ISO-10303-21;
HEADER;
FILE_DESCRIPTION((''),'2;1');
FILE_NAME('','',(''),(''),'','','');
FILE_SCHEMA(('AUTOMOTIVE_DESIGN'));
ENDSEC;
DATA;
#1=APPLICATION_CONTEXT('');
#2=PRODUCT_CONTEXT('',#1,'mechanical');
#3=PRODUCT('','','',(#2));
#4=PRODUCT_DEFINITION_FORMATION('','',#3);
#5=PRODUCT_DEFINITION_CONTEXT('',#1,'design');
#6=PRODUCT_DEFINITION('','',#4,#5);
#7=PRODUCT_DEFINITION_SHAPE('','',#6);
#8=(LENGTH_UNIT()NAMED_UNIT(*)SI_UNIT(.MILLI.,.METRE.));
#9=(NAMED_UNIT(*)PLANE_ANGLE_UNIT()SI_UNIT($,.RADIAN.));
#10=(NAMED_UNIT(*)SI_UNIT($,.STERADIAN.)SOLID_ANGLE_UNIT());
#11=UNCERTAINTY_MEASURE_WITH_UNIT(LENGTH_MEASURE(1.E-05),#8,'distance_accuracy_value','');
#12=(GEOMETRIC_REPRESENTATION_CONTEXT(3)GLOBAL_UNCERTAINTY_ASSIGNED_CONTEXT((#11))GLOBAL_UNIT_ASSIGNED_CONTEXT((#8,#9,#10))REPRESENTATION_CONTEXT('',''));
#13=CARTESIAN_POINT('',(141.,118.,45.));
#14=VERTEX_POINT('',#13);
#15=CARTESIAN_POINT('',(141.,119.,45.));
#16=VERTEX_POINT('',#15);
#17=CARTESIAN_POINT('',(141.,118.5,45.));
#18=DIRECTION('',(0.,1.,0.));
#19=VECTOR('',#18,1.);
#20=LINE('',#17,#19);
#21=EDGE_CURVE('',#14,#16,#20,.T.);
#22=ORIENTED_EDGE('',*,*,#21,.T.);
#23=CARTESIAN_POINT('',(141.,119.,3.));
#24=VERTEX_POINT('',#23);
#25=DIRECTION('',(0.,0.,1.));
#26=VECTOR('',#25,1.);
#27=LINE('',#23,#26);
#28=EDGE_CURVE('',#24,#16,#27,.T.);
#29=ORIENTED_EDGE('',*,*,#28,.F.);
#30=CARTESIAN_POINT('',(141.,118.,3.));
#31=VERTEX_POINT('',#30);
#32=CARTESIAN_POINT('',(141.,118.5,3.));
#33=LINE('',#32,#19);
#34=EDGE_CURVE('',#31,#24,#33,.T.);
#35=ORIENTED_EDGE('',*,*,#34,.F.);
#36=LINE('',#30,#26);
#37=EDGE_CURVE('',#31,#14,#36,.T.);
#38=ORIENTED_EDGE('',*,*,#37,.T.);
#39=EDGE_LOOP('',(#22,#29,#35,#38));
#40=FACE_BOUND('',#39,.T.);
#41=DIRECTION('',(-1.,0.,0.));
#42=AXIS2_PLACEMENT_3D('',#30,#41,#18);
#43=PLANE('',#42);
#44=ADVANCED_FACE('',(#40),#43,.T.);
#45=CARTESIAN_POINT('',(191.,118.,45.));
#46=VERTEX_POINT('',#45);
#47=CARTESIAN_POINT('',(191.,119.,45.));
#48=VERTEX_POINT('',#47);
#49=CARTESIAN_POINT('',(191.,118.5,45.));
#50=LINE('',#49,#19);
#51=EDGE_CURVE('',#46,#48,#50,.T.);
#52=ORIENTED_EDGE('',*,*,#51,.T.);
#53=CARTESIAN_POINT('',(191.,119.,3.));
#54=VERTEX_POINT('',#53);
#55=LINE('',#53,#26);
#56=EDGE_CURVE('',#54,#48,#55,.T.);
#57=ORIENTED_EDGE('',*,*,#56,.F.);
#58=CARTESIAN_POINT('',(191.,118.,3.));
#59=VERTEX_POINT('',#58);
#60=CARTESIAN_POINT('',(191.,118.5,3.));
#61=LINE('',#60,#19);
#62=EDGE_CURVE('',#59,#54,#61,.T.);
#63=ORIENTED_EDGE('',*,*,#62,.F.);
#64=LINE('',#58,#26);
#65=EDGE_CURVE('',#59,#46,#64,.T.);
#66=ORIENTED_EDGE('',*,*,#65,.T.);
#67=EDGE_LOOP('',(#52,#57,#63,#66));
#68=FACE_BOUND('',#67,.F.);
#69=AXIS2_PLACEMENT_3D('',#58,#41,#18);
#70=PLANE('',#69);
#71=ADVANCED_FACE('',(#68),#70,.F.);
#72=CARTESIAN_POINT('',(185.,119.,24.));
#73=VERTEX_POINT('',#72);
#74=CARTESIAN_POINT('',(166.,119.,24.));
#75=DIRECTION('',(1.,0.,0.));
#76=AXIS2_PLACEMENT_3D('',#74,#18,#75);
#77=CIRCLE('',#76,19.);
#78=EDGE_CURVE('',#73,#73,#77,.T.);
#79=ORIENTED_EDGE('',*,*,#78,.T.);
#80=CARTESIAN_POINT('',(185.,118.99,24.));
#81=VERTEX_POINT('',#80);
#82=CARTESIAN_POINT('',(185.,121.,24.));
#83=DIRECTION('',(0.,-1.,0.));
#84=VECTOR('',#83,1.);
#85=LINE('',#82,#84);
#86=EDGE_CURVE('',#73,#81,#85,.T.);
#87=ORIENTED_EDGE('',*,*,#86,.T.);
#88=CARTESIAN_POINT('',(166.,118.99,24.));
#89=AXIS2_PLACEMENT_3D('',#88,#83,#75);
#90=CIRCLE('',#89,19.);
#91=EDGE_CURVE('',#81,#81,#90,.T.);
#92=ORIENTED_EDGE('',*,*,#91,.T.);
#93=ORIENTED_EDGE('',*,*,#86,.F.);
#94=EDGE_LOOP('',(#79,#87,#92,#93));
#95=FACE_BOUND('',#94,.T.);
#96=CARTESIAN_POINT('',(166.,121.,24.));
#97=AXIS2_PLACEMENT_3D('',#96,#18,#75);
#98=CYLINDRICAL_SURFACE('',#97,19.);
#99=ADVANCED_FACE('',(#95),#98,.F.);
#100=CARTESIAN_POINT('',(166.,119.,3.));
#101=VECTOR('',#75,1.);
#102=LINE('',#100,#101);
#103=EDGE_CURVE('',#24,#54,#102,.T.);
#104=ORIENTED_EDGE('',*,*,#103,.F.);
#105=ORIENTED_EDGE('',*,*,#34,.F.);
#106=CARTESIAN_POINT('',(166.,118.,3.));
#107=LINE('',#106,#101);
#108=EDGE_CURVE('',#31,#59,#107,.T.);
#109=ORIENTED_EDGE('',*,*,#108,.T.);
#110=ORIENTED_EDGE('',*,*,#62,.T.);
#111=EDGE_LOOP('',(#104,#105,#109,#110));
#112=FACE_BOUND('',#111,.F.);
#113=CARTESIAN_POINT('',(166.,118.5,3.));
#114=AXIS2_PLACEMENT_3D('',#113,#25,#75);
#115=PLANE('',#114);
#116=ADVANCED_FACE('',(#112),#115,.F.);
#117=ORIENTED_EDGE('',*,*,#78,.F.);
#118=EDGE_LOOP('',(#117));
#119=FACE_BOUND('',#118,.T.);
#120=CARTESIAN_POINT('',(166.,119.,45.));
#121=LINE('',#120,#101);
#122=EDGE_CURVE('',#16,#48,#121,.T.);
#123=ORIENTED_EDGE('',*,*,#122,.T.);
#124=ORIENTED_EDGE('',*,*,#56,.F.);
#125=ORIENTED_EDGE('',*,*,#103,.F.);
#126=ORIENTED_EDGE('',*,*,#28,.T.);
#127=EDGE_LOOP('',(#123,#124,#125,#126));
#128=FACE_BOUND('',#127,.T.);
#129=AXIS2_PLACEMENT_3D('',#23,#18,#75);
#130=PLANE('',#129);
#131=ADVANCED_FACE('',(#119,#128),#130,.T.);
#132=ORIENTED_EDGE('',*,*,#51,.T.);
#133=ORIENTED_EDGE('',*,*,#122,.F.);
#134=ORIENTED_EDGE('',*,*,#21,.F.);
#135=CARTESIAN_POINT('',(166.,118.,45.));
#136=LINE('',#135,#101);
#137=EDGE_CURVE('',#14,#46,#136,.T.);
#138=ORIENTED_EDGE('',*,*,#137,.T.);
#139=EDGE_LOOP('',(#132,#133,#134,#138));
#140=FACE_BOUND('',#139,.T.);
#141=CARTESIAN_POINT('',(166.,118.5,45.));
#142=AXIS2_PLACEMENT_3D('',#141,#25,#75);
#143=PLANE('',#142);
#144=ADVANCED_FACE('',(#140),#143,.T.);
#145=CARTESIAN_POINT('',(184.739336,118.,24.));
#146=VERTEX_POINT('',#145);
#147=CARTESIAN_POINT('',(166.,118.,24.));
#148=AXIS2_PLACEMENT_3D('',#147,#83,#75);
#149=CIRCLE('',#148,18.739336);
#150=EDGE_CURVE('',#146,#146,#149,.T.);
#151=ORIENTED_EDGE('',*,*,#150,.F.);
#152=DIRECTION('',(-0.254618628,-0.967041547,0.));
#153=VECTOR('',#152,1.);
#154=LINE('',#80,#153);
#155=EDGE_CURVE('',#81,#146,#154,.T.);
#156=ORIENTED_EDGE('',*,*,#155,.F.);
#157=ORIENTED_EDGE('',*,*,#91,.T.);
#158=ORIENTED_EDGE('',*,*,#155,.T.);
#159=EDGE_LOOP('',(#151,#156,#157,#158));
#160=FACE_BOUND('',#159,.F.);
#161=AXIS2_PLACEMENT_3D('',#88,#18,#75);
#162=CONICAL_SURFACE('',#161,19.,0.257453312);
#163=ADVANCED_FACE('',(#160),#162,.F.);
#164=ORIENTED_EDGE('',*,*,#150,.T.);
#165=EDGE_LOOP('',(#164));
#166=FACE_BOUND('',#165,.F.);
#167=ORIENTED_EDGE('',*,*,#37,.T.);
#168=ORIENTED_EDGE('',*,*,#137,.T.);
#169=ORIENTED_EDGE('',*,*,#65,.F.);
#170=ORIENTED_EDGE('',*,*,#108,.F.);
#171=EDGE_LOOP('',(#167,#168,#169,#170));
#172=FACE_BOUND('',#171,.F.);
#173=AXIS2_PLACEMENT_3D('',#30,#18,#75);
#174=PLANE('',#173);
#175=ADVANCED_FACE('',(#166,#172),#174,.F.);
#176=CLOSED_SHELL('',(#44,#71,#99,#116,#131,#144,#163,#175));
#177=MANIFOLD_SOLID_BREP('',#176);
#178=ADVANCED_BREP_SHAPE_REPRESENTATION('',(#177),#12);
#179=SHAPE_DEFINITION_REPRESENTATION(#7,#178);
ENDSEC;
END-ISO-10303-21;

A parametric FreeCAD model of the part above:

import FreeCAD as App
import Part
import Sketcher
from FreeCAD import Vector
Q = App.Units.Quantity


def edges_at(feature, points):
    """Names of the edges that pass closest to the given points."""
    edges = feature.Shape.Edges
    near = lambda p: min(range(len(edges)), key=lambda i: edges[i].distToShape(Part.Vertex(*p))[0])
    return sorted({f"Edge{near(p) + 1}" for p in points})

doc = App.newDocument("Part")
params = doc.addObject("Spreadsheet::Sheet", "Params")
for row, (alias, value) in enumerate([
    ("sketch1_diameter", "38 mm"),
    ("pad1_length", "21 mm"),
    ("chamfer_size", "18.99 mm"),
    ("chamfer_size2", "5 mm"),
    ("sketch2_width", "50 mm"),
    ("sketch2_height", "1 mm"),
    ("pad2_length", "42 mm"),
], start=1):
    params.set(f"A{row}", alias)
    params.set(f"B{row}", "=" + value)
    params.setAlias(f"B{row}", alias)

body = doc.addObject("PartDesign::Body", "Body")

sketch1 = body.newObject("Sketcher::SketchObject", "Sketch")
sketch1.AttachmentSupport = (doc.getObject("XZ_Plane"), [""])
sketch1.MapMode = "FlatFace"
sketch1.AttachmentOffset = App.Placement(Vector(0, 0, -121), App.Rotation())
sketch1.addGeometry(Part.Circle(Vector(166, 24, 0), Vector(0, 0, 1), 19), False)
sketch1.addConstraint(Sketcher.Constraint("Diameter", 0, Q("38 mm")))
sketch1.addConstraint(Sketcher.Constraint("DistanceX", -1, 1, 0, 3, Q("166 mm")))
sketch1.addConstraint(Sketcher.Constraint("DistanceY", -1, 1, 0, 3, Q("24 mm")))
sketch1.setExpression("Constraints[0]", "Params.sketch1_diameter")
pad1 = body.newObject("PartDesign::Pad", "Pad")
pad1.Profile = sketch1
pad1.setExpression("Length", "Params.pad1_length")
doc.recompute()

chamfer = body.newObject("PartDesign::Chamfer", "Chamfer")
chamfer.Base = (pad1, edges_at(pad1, [(147, 100, 24)]))
chamfer.ChamferType = "Two distances"
chamfer.setExpression("Size", "Params.chamfer_size")
chamfer.setExpression("Size2", "Params.chamfer_size2")
body2 = doc.addObject("PartDesign::Body", "Body001")

sketch2 = body2.newObject("Sketcher::SketchObject", "Sketch001")
sketch2.AttachmentSupport = (doc.getObject("XY_Plane001"), [""])
sketch2.MapMode = "FlatFace"
sketch2.AttachmentOffset = App.Placement(Vector(0, 0, 3), App.Rotation())
sketch2.addGeometry(Part.LineSegment(Vector(141, 119, 0), Vector(141, 118, 0)), False)
sketch2.addGeometry(Part.LineSegment(Vector(141, 118, 0), Vector(191, 118, 0)), False)
sketch2.addGeometry(Part.LineSegment(Vector(191, 118, 0), Vector(191, 119, 0)), False)
sketch2.addGeometry(Part.LineSegment(Vector(191, 119, 0), Vector(141, 119, 0)), False)
sketch2.addConstraint(Sketcher.Constraint("Coincident", 0, 2, 1, 1))
sketch2.addConstraint(Sketcher.Constraint("Coincident", 1, 2, 2, 1))
sketch2.addConstraint(Sketcher.Constraint("Coincident", 2, 2, 3, 1))
sketch2.addConstraint(Sketcher.Constraint("Coincident", 3, 2, 0, 1))
sketch2.addConstraint(Sketcher.Constraint("Vertical", 0))
sketch2.addConstraint(Sketcher.Constraint("Horizontal", 1))
sketch2.addConstraint(Sketcher.Constraint("Vertical", 2))
sketch2.addConstraint(Sketcher.Constraint("Horizontal", 3))
sketch2.addConstraint(Sketcher.Constraint("DistanceX", 1, 1, 1, 2, Q("50 mm")))
sketch2.addConstraint(Sketcher.Constraint("DistanceY", 0, 2, 0, 1, Q("1 mm")))
sketch2.addConstraint(Sketcher.Constraint("DistanceX", -1, 1, 0, 2, Q("141 mm")))
sketch2.addConstraint(Sketcher.Constraint("DistanceY", -1, 1, 0, 2, Q("118 mm")))
sketch2.setExpression("Constraints[8]", "Params.sketch2_width")
sketch2.setExpression("Constraints[9]", "Params.sketch2_height")
pad2 = body2.newObject("PartDesign::Pad", "Pad001")
pad2.Profile = sketch2
pad2.setExpression("Length", "Params.pad2_length")
doc.recompute()

boolean = body2.newObject("PartDesign::Boolean", "Boolean")
boolean.Type = "Cut"
boolean.addObjects([body])

doc.recompute()
